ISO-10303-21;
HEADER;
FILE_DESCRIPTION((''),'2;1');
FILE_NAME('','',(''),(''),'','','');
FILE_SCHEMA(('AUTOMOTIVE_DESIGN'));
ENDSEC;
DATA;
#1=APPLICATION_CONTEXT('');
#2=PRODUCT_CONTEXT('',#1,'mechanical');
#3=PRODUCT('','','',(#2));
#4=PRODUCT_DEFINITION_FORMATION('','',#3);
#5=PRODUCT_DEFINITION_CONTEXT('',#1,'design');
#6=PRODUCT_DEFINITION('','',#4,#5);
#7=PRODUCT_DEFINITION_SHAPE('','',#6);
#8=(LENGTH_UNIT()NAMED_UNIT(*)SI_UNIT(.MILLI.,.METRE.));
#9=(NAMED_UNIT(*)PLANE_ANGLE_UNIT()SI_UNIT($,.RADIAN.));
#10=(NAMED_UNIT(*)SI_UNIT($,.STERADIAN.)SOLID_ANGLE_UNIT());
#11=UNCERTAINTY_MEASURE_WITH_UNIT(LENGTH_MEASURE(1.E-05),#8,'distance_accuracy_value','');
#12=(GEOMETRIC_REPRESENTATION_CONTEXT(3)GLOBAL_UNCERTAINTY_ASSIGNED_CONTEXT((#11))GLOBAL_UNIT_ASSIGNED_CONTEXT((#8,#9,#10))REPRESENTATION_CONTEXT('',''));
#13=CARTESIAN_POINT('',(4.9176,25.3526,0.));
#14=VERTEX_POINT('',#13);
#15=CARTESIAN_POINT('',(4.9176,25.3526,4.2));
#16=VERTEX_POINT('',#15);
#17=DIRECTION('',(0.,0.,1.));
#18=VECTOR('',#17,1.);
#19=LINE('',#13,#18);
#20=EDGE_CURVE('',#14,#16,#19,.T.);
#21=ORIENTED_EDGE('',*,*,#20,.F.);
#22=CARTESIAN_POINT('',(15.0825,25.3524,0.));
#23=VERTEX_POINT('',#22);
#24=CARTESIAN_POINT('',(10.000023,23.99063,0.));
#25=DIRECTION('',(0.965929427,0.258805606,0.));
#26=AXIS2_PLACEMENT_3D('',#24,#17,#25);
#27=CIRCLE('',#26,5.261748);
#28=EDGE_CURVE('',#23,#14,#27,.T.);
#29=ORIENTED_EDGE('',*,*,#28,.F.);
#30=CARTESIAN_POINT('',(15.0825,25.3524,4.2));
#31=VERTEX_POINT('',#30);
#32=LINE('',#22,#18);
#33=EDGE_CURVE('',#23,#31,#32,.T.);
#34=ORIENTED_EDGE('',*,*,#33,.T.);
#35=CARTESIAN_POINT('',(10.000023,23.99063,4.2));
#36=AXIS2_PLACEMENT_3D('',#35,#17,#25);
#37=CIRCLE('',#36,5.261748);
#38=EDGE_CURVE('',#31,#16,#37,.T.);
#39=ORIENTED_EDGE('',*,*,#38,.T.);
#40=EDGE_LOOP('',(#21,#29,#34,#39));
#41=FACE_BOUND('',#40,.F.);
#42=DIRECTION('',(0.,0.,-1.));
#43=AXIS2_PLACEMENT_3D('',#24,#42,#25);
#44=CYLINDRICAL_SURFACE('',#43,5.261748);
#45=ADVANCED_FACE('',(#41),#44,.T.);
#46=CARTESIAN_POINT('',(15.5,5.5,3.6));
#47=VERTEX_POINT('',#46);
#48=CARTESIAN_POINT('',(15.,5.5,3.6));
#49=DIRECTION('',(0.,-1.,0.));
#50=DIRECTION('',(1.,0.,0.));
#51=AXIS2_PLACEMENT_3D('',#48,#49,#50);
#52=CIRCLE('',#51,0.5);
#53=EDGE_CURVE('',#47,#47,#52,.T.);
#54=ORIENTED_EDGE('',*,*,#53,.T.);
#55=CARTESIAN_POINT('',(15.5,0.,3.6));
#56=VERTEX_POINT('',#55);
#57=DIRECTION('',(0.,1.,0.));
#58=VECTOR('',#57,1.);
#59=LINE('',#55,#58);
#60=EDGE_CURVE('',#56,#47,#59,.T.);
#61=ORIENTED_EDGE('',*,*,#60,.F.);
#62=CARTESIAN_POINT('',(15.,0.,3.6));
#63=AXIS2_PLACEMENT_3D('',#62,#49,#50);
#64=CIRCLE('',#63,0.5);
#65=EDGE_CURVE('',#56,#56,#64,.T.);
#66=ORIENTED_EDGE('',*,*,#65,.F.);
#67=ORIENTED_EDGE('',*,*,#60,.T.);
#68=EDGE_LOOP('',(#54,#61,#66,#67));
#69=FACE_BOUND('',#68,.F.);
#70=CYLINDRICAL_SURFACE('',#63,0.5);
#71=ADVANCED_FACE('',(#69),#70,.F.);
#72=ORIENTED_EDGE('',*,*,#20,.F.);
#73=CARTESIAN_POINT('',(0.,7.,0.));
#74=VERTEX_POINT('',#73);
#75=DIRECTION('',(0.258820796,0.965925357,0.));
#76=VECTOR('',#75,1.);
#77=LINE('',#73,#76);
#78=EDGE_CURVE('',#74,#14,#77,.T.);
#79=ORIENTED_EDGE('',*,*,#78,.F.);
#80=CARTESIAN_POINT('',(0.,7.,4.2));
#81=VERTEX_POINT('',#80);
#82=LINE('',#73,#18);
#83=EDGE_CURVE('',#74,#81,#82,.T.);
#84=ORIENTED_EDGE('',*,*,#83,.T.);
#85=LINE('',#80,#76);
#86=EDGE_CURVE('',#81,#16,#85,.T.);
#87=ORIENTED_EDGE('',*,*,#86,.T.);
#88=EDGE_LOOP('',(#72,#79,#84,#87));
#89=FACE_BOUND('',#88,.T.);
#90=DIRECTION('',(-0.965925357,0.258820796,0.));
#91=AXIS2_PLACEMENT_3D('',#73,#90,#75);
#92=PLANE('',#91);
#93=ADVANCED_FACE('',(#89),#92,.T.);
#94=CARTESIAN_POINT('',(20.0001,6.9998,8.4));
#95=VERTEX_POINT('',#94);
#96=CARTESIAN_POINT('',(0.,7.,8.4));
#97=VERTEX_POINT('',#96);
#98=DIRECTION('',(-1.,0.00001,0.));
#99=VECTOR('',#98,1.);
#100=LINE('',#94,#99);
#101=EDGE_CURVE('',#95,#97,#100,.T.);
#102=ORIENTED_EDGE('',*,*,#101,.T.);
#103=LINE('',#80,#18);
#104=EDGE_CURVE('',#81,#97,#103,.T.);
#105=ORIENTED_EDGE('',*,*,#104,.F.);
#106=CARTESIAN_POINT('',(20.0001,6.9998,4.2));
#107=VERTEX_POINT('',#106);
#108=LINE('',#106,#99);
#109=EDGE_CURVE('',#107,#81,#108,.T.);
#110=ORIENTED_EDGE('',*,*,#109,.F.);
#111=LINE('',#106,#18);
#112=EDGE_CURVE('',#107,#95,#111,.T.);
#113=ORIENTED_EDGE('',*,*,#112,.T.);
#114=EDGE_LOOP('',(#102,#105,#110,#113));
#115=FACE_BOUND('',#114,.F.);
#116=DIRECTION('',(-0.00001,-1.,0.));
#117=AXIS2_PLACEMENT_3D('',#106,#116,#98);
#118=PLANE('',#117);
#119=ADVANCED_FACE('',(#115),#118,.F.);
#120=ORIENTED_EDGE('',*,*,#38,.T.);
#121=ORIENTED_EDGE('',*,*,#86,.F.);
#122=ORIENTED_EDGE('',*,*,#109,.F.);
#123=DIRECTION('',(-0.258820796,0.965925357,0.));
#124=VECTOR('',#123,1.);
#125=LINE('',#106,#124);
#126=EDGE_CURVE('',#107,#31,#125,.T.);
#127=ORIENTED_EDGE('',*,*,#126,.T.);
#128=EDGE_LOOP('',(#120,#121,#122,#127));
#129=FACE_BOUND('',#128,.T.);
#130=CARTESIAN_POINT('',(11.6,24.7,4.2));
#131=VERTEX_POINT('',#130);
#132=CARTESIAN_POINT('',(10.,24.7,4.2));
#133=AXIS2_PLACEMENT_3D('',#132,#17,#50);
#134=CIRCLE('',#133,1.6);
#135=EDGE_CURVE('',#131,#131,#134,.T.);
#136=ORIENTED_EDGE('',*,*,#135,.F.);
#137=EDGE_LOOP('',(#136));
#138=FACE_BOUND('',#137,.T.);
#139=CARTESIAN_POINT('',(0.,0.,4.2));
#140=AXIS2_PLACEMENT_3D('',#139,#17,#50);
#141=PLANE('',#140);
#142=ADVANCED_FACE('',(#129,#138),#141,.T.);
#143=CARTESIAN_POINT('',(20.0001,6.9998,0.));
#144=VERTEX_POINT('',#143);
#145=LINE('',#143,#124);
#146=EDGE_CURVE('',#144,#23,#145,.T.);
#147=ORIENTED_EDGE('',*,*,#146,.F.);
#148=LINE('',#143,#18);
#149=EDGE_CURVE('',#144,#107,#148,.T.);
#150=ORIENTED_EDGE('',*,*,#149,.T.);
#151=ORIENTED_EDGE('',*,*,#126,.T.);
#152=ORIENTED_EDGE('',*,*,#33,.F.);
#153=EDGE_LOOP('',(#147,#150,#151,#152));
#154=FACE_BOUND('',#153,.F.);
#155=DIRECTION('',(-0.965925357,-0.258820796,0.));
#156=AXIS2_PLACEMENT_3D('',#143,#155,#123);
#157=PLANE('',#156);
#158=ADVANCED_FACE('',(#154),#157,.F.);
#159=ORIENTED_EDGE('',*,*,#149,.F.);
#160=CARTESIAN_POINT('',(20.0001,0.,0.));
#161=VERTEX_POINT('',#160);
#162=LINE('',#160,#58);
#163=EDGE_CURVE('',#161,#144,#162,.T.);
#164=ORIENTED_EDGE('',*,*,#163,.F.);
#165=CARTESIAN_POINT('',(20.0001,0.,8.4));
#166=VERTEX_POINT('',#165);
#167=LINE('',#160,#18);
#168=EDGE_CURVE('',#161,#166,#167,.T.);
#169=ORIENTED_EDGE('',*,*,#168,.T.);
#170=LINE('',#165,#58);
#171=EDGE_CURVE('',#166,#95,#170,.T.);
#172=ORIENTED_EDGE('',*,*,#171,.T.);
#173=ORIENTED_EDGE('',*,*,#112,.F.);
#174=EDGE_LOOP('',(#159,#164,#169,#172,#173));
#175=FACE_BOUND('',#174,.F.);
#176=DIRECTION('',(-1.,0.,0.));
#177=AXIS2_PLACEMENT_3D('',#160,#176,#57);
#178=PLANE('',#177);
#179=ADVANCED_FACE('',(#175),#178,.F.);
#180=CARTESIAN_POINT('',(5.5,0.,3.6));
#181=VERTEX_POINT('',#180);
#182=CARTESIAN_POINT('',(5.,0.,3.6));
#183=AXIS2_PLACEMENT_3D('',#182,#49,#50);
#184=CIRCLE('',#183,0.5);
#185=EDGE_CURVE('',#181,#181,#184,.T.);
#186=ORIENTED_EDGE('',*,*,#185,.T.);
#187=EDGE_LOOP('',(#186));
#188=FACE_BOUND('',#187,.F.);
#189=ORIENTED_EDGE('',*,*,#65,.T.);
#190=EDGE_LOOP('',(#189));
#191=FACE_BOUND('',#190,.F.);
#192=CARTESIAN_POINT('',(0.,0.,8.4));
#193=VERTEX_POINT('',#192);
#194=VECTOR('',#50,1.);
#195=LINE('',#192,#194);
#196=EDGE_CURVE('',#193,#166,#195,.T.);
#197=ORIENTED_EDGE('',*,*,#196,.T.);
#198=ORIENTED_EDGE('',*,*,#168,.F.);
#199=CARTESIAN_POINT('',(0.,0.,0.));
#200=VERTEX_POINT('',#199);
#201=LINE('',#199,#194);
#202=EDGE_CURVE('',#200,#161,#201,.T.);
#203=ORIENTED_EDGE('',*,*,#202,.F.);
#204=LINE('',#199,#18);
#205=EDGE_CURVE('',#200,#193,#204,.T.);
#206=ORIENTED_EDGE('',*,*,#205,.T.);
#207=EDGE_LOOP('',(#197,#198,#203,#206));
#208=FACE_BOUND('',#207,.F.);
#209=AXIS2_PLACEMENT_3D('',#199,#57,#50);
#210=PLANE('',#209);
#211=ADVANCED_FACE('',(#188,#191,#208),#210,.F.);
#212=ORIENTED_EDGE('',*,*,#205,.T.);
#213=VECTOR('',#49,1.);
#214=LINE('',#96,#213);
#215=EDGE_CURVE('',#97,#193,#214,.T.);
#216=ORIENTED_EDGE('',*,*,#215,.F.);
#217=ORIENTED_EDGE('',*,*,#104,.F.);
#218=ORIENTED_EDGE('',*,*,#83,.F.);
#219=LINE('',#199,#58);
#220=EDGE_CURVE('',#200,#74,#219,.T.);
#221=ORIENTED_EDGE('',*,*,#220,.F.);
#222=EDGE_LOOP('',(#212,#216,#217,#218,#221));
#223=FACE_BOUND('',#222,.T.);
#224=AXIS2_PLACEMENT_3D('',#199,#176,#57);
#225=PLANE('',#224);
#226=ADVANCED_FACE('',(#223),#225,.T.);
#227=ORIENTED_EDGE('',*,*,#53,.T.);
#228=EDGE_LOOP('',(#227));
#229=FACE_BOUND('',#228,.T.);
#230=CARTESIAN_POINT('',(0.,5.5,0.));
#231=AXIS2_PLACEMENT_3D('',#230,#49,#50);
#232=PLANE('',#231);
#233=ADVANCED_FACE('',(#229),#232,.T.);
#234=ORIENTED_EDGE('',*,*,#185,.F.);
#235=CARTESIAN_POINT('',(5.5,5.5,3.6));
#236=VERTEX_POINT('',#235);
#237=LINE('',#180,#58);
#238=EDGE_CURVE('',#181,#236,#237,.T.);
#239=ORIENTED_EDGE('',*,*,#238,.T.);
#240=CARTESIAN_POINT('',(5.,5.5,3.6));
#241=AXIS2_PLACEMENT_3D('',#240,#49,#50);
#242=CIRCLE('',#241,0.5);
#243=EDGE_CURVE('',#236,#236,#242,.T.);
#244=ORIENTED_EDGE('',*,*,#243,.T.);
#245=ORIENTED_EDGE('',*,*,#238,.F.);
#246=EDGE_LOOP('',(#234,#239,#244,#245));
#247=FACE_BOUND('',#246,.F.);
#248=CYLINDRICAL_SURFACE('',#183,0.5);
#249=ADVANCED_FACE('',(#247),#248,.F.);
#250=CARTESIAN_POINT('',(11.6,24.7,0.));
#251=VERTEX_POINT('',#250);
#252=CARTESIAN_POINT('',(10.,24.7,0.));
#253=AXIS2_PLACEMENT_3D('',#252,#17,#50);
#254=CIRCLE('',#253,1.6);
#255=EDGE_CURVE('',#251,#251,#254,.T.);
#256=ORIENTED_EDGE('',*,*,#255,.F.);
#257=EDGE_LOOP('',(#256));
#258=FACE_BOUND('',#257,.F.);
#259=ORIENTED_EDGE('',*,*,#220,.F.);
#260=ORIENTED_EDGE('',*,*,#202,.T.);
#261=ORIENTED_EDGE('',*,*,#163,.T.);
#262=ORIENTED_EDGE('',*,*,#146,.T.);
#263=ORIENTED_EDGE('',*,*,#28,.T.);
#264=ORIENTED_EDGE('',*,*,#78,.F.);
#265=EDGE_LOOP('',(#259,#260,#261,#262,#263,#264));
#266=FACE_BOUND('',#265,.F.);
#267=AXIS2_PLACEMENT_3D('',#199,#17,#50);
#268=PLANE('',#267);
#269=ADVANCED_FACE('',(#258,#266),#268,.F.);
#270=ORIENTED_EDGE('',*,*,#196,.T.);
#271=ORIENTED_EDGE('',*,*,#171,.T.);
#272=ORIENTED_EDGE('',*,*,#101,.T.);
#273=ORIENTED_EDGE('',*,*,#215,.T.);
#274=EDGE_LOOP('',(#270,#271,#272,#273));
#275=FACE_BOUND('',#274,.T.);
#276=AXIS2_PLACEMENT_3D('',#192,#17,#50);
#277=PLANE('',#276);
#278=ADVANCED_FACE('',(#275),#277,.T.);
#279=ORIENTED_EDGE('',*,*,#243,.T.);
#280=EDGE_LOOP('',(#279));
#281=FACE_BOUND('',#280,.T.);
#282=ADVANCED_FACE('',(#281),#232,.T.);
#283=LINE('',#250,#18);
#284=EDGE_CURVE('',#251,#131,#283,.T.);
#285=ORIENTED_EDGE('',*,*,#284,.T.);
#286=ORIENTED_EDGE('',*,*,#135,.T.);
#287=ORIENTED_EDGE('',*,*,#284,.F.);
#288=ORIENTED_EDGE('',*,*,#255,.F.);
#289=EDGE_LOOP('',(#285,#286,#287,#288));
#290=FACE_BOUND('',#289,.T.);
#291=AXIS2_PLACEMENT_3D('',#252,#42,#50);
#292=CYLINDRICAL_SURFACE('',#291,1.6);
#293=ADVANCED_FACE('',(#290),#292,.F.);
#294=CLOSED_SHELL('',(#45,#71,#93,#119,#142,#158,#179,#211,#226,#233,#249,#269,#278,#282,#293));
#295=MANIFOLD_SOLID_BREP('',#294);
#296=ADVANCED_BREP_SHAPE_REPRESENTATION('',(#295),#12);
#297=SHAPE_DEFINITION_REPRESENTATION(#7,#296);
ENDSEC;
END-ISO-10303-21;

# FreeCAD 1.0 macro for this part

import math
import FreeCAD as App
import Part
import Sketcher
Q = App.Units.Quantity


def add_polygon(sketch, points):
    """Adds a closed chain of lines whose ends are joined by coincident constraints."""
    first, n = sketch.GeometryCount, len(points)
    for a, b in zip(points, points[1:] + points[:1]):
        sketch.addGeometry(Part.LineSegment(App.Vector(*a, 0), App.Vector(*b, 0)), False)
    for i in range(n):
        sketch.addConstraint(Sketcher.Constraint("Coincident", first + i, 2, first + (i + 1) % n, 1))

doc = App.newDocument("Part")
params = doc.addObject("Spreadsheet::Sheet", "Params")
for row, (alias, value) in enumerate([
    ("sketch1_height", "7 mm"),
    ("sketch1_length", "19 mm"),
    ("sketch1_diameter", "3.2 mm"),
    ("pad1_length", "4.2 mm"),
    ("sketch2_width", "20 mm"),
    ("sketch2_height", "7 mm"),
    ("pad2_length", "4.2 mm"),
    ("sketch3_diameter", "1 mm"),
    ("pocket1_length", "5.5 mm"),
], start=1):
    params.set(f"A{row}", alias)
    params.set(f"B{row}", "=" + value)
    params.setAlias(f"B{row}", alias)

body = doc.addObject("PartDesign::Body", "Body")

sketch1 = body.newObject("Sketcher::SketchObject", "Sketch")
sketch1.AttachmentSupport = (doc.getObject("XY_Plane"), [""])
sketch1.MapMode = "FlatFace"
sketch1.addGeometry([
    Part.LineSegment(App.Vector(0, 7, 0), App.Vector(0, 0, 0)),
    Part.LineSegment(App.Vector(0, 0, 0), App.Vector(20, 0, 0)),
    Part.LineSegment(App.Vector(20, 0, 0), App.Vector(20, 7, 0)),
    Part.LineSegment(App.Vector(20, 7, 0), App.Vector(15.1, 25.4, 0)),
    Part.ArcOfCircle(Part.Circle(App.Vector(10, 24, 0), App.Vector(0, 0, 1), 5.3), math.radians(15), math.radians(165)),
    Part.LineSegment(App.Vector(4.9, 25.4, 0), App.Vector(0, 7, 0)),
    Part.Circle(App.Vector(10, 24.7, 0), App.Vector(0, 0, 1), 1.6),
], False)
sketch1.addConstraint([
    Sketcher.Constraint("Coincident", 0, 2, 1, 1),
    Sketcher.Constraint("Coincident", 1, 2, 2, 1),
    Sketcher.Constraint("Coincident", 2, 2, 3, 1),
    Sketcher.Constraint("Tangent", 3, 2, 4, 1),
    Sketcher.Constraint("Tangent", 4, 2, 5, 1),
    Sketcher.Constraint("Coincident", 5, 2, 0, 1),
    Sketcher.Constraint("Vertical", 0),
    Sketcher.Constraint("Horizontal", 1),
    Sketcher.Constraint("Vertical", 2),
    Sketcher.Constraint("Coincident", 0, 2, -1, 1),
    Sketcher.Constraint("Vertical", 4, 3, 6, 3),
    Sketcher.Constraint("Equal", 3, 5),
    Sketcher.Constraint("DistanceY", 0, 2, 0, 1, Q("7 mm")),
    Sketcher.Constraint("Angle", 3, Q("105 deg")),
    Sketcher.Constraint("Angle", 5, Q("-105 deg")),
    Sketcher.Constraint("Distance", 3, Q("19 mm")),
    Sketcher.Constraint("DistanceX", -1, 1, 4, 3, Q("10 mm")),
    Sketcher.Constraint("Diameter", 6, Q("3.2 mm")),
    Sketcher.Constraint("DistanceY", -1, 1, 6, 3, Q("24.7 mm")),
])
sketch1.setExpression("Constraints[12]", "Params.sketch1_height")
sketch1.setExpression("Constraints[15]", "Params.sketch1_length")
sketch1.setExpression("Constraints[17]", "Params.sketch1_diameter")
pad1 = body.newObject("PartDesign::Pad", "Pad")
pad1.Profile = sketch1
pad1.setExpression("Length", "Params.pad1_length")

sketch2 = body.newObject("Sketcher::SketchObject", "Sketch001")
sketch2.AttachmentSupport = (doc.getObject("XY_Plane"), [""])
sketch2.MapMode = "FlatFace"
sketch2.AttachmentOffset = App.Placement(App.Vector(0, 0, 4.2), App.Rotation())
add_polygon(sketch2, [(20, 7), (0, 7), (0, 0), (20, 0)])
sketch2.addConstraint([
    Sketcher.Constraint("Vertical", 1),
    Sketcher.Constraint("Horizontal", 2),
    Sketcher.Constraint("Vertical", 3),
    Sketcher.Constraint("Coincident", 1, 2, -1, 1),
    Sketcher.Constraint("DistanceX", 2, 1, 2, 2, Q("20 mm")),
    Sketcher.Constraint("DistanceY", 1, 2, 1, 1, Q("7 mm")),
    Sketcher.Constraint("Angle", 0, Q("179.9994 deg")),
])
sketch2.setExpression("Constraints[8]", "Params.sketch2_width")
sketch2.setExpression("Constraints[9]", "Params.sketch2_height")
pad2 = body.newObject("PartDesign::Pad", "Pad001")
pad2.Profile = sketch2
pad2.setExpression("Length", "Params.pad2_length")

sketch3 = body.newObject("Sketcher::SketchObject", "Sketch002")
sketch3.AttachmentSupport = (doc.getObject("XZ_Plane"), [""])
sketch3.MapMode = "FlatFace"
sketch3.addGeometry([
    Part.Circle(App.Vector(5, 3.6, 0), App.Vector(0, 0, 1), 0.5),
    Part.Circle(App.Vector(15, 3.6, 0), App.Vector(0, 0, 1), 0.5),
], False)
sketch3.addConstraint([
    Sketcher.Constraint("Equal", 0, 1),
    Sketcher.Constraint("Horizontal", 0, 3, 1, 3),
    Sketcher.Constraint("Diameter", 0, Q("1 mm")),
    Sketcher.Constraint("DistanceX", -1, 1, 0, 3, Q("5 mm")),
    Sketcher.Constraint("DistanceX", -1, 1, 1, 3, Q("15 mm")),
    Sketcher.Constraint("DistanceY", -1, 1, 0, 3, Q("3.6 mm")),
])
sketch3.setExpression("Constraints[2]", "Params.sketch3_diameter")
pocket1 = body.newObject("PartDesign::Pocket", "Pocket")
pocket1.Profile = sketch3
pocket1.setExpression("Length", "Params.pocket1_length")

doc.recompute()
